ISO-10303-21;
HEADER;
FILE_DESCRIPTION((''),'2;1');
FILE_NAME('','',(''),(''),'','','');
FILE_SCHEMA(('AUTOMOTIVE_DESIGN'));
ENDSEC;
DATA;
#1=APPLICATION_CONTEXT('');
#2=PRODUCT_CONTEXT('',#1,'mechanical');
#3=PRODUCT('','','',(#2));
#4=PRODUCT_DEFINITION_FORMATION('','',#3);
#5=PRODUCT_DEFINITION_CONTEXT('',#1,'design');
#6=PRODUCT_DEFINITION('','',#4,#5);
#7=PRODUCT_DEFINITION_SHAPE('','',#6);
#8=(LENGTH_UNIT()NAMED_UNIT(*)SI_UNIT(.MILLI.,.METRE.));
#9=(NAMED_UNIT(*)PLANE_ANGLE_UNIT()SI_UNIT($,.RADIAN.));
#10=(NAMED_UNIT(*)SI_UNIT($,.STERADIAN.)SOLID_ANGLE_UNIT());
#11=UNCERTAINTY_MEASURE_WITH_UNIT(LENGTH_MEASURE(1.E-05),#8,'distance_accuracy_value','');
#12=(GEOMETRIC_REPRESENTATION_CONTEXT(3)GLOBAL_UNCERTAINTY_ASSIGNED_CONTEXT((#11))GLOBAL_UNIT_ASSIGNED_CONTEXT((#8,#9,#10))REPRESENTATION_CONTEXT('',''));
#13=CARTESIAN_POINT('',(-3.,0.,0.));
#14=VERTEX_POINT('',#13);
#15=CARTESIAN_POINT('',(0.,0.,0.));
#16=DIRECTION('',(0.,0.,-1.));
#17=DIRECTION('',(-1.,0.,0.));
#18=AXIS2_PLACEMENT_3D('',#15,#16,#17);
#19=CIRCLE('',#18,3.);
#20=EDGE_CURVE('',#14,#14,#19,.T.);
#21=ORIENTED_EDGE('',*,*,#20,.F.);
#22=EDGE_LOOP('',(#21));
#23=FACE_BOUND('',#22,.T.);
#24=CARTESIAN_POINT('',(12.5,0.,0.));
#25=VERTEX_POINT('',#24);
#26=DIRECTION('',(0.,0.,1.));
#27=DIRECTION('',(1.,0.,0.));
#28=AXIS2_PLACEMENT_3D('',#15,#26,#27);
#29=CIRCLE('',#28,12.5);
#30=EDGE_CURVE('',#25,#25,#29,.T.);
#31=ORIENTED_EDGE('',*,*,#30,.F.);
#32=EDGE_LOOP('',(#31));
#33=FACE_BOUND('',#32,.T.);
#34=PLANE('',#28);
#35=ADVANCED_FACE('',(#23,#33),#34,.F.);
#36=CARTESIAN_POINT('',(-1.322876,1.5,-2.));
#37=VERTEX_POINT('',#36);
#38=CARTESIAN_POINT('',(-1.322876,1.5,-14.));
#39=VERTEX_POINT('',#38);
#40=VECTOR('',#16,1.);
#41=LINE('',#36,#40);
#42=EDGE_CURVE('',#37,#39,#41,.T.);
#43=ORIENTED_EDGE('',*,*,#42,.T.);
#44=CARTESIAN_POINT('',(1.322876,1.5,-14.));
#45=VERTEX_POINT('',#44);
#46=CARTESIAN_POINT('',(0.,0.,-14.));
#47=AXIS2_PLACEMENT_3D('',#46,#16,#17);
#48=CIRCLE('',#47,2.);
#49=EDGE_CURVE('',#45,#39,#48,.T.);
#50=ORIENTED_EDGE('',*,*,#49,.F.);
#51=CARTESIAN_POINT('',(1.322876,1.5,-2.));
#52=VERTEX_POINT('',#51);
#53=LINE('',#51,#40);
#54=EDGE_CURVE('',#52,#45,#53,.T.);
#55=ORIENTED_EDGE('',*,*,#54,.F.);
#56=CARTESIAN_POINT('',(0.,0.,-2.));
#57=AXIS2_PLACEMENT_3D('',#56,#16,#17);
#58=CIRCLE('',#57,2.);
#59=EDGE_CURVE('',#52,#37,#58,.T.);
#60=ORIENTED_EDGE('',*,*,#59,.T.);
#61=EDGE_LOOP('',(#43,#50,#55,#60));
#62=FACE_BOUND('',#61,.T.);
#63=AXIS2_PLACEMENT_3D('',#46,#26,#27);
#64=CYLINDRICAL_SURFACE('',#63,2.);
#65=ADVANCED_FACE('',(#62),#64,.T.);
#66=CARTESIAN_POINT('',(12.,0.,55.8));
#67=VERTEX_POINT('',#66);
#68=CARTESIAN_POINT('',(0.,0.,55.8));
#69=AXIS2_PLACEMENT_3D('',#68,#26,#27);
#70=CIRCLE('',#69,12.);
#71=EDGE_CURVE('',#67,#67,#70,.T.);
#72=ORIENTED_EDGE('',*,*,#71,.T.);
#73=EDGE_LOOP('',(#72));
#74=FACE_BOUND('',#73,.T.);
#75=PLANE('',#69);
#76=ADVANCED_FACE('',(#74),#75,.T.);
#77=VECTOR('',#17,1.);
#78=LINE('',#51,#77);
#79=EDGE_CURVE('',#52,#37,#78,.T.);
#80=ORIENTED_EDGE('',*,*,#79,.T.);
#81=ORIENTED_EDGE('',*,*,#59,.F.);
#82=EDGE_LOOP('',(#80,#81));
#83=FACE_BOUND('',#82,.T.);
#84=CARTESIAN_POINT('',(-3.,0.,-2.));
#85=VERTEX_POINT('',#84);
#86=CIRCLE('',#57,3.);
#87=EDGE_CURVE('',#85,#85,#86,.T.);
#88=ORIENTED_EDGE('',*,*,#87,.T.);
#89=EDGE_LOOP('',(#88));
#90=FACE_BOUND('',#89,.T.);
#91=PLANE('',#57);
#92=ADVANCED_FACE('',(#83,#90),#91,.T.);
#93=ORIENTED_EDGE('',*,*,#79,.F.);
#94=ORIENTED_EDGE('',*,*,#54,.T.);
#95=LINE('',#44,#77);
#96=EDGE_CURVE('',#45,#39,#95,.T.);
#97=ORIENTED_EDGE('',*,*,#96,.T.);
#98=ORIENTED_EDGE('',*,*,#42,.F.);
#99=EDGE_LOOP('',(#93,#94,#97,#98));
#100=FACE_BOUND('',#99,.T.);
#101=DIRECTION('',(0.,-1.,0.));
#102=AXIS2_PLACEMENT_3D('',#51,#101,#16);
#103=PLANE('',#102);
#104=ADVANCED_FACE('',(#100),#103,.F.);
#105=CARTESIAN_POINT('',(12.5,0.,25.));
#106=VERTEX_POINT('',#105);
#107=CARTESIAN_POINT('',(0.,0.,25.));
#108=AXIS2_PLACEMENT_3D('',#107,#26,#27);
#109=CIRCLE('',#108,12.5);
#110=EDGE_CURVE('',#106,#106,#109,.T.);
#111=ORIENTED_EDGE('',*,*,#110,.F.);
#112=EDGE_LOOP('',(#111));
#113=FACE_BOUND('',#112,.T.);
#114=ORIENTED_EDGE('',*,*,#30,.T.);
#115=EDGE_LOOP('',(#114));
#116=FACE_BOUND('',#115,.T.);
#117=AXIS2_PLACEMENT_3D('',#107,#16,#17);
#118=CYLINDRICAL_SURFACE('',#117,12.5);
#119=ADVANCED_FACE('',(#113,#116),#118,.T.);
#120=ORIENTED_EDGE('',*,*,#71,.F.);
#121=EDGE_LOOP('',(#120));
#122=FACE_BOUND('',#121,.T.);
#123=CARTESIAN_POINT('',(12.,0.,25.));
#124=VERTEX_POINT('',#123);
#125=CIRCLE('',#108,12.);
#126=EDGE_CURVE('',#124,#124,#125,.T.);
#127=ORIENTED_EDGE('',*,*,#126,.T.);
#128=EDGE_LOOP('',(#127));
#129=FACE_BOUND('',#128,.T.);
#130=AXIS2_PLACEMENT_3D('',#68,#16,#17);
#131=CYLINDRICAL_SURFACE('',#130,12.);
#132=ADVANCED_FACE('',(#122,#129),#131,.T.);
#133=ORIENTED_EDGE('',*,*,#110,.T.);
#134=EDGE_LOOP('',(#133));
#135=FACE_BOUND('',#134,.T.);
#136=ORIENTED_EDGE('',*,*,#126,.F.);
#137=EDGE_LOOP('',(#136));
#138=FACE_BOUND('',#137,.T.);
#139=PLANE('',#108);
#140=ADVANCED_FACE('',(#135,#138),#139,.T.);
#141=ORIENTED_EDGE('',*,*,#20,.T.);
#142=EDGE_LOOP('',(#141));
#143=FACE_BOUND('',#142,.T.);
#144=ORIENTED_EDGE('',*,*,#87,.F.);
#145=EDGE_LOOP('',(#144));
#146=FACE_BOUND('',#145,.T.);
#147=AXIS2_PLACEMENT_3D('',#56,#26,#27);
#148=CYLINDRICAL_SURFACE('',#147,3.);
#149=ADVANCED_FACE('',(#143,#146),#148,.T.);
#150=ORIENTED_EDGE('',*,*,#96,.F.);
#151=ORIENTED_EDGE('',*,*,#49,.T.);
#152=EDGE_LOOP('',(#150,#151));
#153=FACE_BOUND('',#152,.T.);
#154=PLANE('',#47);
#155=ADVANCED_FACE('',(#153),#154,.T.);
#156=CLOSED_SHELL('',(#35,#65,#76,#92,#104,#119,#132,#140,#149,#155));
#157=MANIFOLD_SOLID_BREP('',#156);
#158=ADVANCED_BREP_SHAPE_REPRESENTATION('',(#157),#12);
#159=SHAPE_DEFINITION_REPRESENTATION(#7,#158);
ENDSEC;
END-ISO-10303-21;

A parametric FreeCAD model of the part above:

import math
import FreeCAD as App
import Part
import Sketcher

doc = App.newDocument("Part")
body = doc.addObject("PartDesign::Body", "Body")

# Sketch on XY plane
sketch1 = body.newObject("Sketcher::SketchObject", "Sketch")
sketch1.AttachmentSupport = (doc.getObject("XY_Plane"), [""])
sketch1.MapMode = "FlatFace"
sketch1.addGeometry(Part.Circle(App.Vector(0, 0, 0), App.Vector(0, 0, 1), 12.5), False)
sketch1.addConstraint([
    Sketcher.Constraint("Coincident", 0, 3, -1, 1),
    Sketcher.Constraint("Diameter", 0, 25.0),
])
pad1 = body.newObject("PartDesign::Pad", "Pad")
pad1.Profile = sketch1
pad1.Length = 25

# Sketch on XY plane
sketch2 = body.newObject("Sketcher::SketchObject", "Sketch001")
sketch2.AttachmentSupport = (doc.getObject("XY_Plane"), [""])
sketch2.MapMode = "FlatFace"
sketch2.addGeometry(Part.Circle(App.Vector(0, 0, 0), App.Vector(0, 0, 1), 3), False)
sketch2.addConstraint([
    Sketcher.Constraint("Coincident", 0, 3, -1, 1),
    Sketcher.Constraint("Diameter", 0, 6.0),
])
pad2 = body.newObject("PartDesign::Pad", "Pad001")
pad2.Profile = sketch2
pad2.Length = 2
pad2.Reversed = True

# Sketch on XY plane
sketch3 = body.newObject("Sketcher::SketchObject", "Sketch002")
sketch3.AttachmentSupport = (doc.getObject("XY_Plane"), [""])
sketch3.MapMode = "FlatFace"
sketch3.AttachmentOffset = App.Placement(App.Vector(0, 0, -2), App.Rotation())
sketch3.addGeometry(Part.Circle(App.Vector(0, 0, 0), App.Vector(0, 0, 1), 2), False)
sketch3.addConstraint([
    Sketcher.Constraint("Coincident", 0, 3, -1, 1),
    Sketcher.Constraint("Diameter", 0, 4.0),
])
pad3 = body.newObject("PartDesign::Pad", "Pad002")
pad3.Profile = sketch3
pad3.Length = 12
pad3.Reversed = True

# Sketch on XY plane
sketch4 = body.newObject("Sketcher::SketchObject", "Sketch003")
sketch4.AttachmentSupport = (doc.getObject("XY_Plane"), [""])
sketch4.MapMode = "FlatFace"
sketch4.AttachmentOffset = App.Placement(App.Vector(0, 0, -14), App.Rotation())
sketch4.addGeometry([
    Part.LineSegment(App.Vector(1.322876, 1.5, 0), App.Vector(-1.322876, 1.5, 0)),
    Part.ArcOfCircle(Part.Circle(App.Vector(0, 0, 0), App.Vector(0, 0, 1), 2), math.radians(48.590378), math.radians(131.409622)),
], False)
sketch4.addConstraint([
    Sketcher.Constraint("Coincident", 0, 1, 1, 1),
    Sketcher.Constraint("Coincident", 1, 2, 0, 2),
    Sketcher.Constraint("Horizontal", 0),
    Sketcher.Constraint("Coincident", 1, 3, -1, 1),
    Sketcher.Constraint("Radius", 1, 2.0),
    Sketcher.Constraint("DistanceY", -1, 1, 0, 1, 1.5),
])
pocket1 = body.newObject("PartDesign::Pocket", "Pocket")
pocket1.Profile = sketch4
pocket1.Length = 12
pocket1.Reversed = True

# Sketch on XY plane
sketch5 = body.newObject("Sketcher::SketchObject", "Sketch004")
sketch5.AttachmentSupport = (doc.getObject("XY_Plane"), [""])
sketch5.MapMode = "FlatFace"
sketch5.AttachmentOffset = App.Placement(App.Vector(0, 0, 25), App.Rotation())
sketch5.addGeometry(Part.Circle(App.Vector(0, 0, 0), App.Vector(0, 0, 1), 12), False)
sketch5.addConstraint([
    Sketcher.Constraint("Coincident", 0, 3, -1, 1),
    Sketcher.Constraint("Diameter", 0, 24.0),
])
pad4 = body.newObject("PartDesign::Pad", "Pad003")
pad4.Profile = sketch5
pad4.Length = 30.8

doc.recompute()
